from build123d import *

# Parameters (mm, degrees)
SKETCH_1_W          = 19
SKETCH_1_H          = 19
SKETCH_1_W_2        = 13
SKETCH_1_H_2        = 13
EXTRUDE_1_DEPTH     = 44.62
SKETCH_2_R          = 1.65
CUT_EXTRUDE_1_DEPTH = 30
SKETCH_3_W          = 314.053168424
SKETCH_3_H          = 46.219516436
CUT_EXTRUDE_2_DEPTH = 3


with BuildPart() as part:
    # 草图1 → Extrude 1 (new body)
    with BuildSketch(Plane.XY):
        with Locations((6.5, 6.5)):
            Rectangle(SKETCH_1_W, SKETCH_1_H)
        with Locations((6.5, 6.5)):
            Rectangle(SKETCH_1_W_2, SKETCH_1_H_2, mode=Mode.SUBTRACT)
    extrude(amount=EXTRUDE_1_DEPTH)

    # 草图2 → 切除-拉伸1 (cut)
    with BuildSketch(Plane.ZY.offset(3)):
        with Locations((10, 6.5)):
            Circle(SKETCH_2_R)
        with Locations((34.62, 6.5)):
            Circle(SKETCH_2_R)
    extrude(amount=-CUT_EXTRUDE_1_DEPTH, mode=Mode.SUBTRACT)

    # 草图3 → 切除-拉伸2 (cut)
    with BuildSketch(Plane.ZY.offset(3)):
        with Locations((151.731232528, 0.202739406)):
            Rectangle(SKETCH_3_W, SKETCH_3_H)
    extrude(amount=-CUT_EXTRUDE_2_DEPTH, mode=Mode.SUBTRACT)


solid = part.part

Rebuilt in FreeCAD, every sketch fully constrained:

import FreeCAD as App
import Part
import Sketcher
from FreeCAD import Vector
Q = App.Units.Quantity


def add_polygon(sketch, points):
    """Adds a closed chain of lines whose ends are joined by coincident constraints."""
    first, n = sketch.GeometryCount, len(points)
    for a, b in zip(points, points[1:] + points[:1]):
        sketch.addGeometry(Part.LineSegment(App.Vector(*a, 0), App.Vector(*b, 0)), False)
    for i in range(n):
        sketch.addConstraint(Sketcher.Constraint("Coincident", first + i, 2, first + (i + 1) % n, 1))

doc = App.newDocument("Part")
body = doc.addObject("PartDesign::Body", "Body")

# Sketch on XY plane
sketch1 = body.newObject("Sketcher::SketchObject", "Sketch")
sketch1.AttachmentSupport = (doc.getObject("XY_Plane"), [""])
sketch1.MapMode = "FlatFace"
add_polygon(sketch1, [(-3, 16), (-3, -3), (16, -3), (16, 16)])  # lines 0-3
add_polygon(sketch1, [(13, 0), (0, 0), (0, 13), (13, 13)])  # lines 4-7
sketch1.addConstraint([
    Sketcher.Constraint("Vertical", 0),
    Sketcher.Constraint("Horizontal", 1),
    Sketcher.Constraint("Vertical", 2),
    Sketcher.Constraint("Horizontal", 3),
    Sketcher.Constraint("Horizontal", 4),
    Sketcher.Constraint("Vertical", 5),
    Sketcher.Constraint("Horizontal", 6),
    Sketcher.Constraint("Vertical", 7),
    Sketcher.Constraint("Coincident", 4, 2, -1, 1),
    Sketcher.Constraint("Equal", 3, 0),
    Sketcher.Constraint("Equal", 6, 5),
    Sketcher.Constraint("DistanceX", 1, 1, 1, 2, Q("19 mm")),
    Sketcher.Constraint("DistanceX", 4, 2, 4, 1, Q("13 mm")),
    Sketcher.Constraint("DistanceX", 0, 2, -1, 1, Q("3 mm")),
    Sketcher.Constraint("DistanceY", 0, 2, -1, 1, Q("3 mm")),
])
pad1 = body.newObject("PartDesign::Pad", "Pad")
pad1.Profile = sketch1
pad1.Length = 44.62

# Sketch on YZ plane
sketch2 = body.newObject("Sketcher::SketchObject", "Sketch001")
sketch2.AttachmentSupport = (doc.getObject("YZ_Plane"), [""])
sketch2.MapMode = "FlatFace"
sketch2.AttachmentOffset = App.Placement(Vector(0, 0, -3), App.Rotation())
sketch2.addGeometry([
    Part.Circle(Vector(6.5, 10, 0), Vector(0, 0, 1), 1.6),
    Part.Circle(Vector(6.5, 34.6, 0), Vector(0, 0, 1), 1.6),
], False)
sketch2.addConstraint([
    Sketcher.Constraint("Equal", 0, 1),
    Sketcher.Constraint("Vertical", 0, 3, 1, 3),
    Sketcher.Constraint("Diameter", 0, Q("3.3 mm")),
    Sketcher.Constraint("DistanceY", -1, 1, 0, 3, Q("10 mm")),
    Sketcher.Constraint("DistanceX", -1, 1, 0, 3, Q("6.5 mm")),
    Sketcher.Constraint("DistanceY", -1, 1, 1, 3, Q("34.62 mm")),
])
pocket1 = body.newObject("PartDesign::Pocket", "Pocket")
pocket1.Profile = sketch2
pocket1.Length = 30
pocket1.Reversed = True

# Sketch on YZ plane
sketch3 = body.newObject("Sketcher::SketchObject", "Sketch002")
sketch3.AttachmentSupport = (doc.getObject("YZ_Plane"), [""])
sketch3.MapMode = "FlatFace"
sketch3.AttachmentOffset = App.Placement(Vector(0, 0, -3), App.Rotation())
add_polygon(sketch3, [(23, -5), (-23, -5), (-23, 309), (23, 309)])  # lines 0-3
sketch3.addConstraint([
    Sketcher.Constraint("Horizontal", 0),
    Sketcher.Constraint("Vertical", 1),
    Sketcher.Constraint("Horizontal", 2),
    Sketcher.Constraint("Vertical", 3),
    Sketcher.Constraint("DistanceY", 1, 1, 1, 2, Q("314.053168 mm")),
    Sketcher.Constraint("DistanceX", 0, 2, 0, 1, Q("46.219516 mm")),
    Sketcher.Constraint("DistanceX", 0, 2, -1, 1, Q("22.907019 mm")),
    Sketcher.Constraint("DistanceY", 0, 2, -1, 1, Q("5.295352 mm")),
])
pocket2 = body.newObject("PartDesign::Pocket", "Pocket001")
pocket2.Profile = sketch3
pocket2.Length = 3
pocket2.Reversed = True

doc.recompute()
